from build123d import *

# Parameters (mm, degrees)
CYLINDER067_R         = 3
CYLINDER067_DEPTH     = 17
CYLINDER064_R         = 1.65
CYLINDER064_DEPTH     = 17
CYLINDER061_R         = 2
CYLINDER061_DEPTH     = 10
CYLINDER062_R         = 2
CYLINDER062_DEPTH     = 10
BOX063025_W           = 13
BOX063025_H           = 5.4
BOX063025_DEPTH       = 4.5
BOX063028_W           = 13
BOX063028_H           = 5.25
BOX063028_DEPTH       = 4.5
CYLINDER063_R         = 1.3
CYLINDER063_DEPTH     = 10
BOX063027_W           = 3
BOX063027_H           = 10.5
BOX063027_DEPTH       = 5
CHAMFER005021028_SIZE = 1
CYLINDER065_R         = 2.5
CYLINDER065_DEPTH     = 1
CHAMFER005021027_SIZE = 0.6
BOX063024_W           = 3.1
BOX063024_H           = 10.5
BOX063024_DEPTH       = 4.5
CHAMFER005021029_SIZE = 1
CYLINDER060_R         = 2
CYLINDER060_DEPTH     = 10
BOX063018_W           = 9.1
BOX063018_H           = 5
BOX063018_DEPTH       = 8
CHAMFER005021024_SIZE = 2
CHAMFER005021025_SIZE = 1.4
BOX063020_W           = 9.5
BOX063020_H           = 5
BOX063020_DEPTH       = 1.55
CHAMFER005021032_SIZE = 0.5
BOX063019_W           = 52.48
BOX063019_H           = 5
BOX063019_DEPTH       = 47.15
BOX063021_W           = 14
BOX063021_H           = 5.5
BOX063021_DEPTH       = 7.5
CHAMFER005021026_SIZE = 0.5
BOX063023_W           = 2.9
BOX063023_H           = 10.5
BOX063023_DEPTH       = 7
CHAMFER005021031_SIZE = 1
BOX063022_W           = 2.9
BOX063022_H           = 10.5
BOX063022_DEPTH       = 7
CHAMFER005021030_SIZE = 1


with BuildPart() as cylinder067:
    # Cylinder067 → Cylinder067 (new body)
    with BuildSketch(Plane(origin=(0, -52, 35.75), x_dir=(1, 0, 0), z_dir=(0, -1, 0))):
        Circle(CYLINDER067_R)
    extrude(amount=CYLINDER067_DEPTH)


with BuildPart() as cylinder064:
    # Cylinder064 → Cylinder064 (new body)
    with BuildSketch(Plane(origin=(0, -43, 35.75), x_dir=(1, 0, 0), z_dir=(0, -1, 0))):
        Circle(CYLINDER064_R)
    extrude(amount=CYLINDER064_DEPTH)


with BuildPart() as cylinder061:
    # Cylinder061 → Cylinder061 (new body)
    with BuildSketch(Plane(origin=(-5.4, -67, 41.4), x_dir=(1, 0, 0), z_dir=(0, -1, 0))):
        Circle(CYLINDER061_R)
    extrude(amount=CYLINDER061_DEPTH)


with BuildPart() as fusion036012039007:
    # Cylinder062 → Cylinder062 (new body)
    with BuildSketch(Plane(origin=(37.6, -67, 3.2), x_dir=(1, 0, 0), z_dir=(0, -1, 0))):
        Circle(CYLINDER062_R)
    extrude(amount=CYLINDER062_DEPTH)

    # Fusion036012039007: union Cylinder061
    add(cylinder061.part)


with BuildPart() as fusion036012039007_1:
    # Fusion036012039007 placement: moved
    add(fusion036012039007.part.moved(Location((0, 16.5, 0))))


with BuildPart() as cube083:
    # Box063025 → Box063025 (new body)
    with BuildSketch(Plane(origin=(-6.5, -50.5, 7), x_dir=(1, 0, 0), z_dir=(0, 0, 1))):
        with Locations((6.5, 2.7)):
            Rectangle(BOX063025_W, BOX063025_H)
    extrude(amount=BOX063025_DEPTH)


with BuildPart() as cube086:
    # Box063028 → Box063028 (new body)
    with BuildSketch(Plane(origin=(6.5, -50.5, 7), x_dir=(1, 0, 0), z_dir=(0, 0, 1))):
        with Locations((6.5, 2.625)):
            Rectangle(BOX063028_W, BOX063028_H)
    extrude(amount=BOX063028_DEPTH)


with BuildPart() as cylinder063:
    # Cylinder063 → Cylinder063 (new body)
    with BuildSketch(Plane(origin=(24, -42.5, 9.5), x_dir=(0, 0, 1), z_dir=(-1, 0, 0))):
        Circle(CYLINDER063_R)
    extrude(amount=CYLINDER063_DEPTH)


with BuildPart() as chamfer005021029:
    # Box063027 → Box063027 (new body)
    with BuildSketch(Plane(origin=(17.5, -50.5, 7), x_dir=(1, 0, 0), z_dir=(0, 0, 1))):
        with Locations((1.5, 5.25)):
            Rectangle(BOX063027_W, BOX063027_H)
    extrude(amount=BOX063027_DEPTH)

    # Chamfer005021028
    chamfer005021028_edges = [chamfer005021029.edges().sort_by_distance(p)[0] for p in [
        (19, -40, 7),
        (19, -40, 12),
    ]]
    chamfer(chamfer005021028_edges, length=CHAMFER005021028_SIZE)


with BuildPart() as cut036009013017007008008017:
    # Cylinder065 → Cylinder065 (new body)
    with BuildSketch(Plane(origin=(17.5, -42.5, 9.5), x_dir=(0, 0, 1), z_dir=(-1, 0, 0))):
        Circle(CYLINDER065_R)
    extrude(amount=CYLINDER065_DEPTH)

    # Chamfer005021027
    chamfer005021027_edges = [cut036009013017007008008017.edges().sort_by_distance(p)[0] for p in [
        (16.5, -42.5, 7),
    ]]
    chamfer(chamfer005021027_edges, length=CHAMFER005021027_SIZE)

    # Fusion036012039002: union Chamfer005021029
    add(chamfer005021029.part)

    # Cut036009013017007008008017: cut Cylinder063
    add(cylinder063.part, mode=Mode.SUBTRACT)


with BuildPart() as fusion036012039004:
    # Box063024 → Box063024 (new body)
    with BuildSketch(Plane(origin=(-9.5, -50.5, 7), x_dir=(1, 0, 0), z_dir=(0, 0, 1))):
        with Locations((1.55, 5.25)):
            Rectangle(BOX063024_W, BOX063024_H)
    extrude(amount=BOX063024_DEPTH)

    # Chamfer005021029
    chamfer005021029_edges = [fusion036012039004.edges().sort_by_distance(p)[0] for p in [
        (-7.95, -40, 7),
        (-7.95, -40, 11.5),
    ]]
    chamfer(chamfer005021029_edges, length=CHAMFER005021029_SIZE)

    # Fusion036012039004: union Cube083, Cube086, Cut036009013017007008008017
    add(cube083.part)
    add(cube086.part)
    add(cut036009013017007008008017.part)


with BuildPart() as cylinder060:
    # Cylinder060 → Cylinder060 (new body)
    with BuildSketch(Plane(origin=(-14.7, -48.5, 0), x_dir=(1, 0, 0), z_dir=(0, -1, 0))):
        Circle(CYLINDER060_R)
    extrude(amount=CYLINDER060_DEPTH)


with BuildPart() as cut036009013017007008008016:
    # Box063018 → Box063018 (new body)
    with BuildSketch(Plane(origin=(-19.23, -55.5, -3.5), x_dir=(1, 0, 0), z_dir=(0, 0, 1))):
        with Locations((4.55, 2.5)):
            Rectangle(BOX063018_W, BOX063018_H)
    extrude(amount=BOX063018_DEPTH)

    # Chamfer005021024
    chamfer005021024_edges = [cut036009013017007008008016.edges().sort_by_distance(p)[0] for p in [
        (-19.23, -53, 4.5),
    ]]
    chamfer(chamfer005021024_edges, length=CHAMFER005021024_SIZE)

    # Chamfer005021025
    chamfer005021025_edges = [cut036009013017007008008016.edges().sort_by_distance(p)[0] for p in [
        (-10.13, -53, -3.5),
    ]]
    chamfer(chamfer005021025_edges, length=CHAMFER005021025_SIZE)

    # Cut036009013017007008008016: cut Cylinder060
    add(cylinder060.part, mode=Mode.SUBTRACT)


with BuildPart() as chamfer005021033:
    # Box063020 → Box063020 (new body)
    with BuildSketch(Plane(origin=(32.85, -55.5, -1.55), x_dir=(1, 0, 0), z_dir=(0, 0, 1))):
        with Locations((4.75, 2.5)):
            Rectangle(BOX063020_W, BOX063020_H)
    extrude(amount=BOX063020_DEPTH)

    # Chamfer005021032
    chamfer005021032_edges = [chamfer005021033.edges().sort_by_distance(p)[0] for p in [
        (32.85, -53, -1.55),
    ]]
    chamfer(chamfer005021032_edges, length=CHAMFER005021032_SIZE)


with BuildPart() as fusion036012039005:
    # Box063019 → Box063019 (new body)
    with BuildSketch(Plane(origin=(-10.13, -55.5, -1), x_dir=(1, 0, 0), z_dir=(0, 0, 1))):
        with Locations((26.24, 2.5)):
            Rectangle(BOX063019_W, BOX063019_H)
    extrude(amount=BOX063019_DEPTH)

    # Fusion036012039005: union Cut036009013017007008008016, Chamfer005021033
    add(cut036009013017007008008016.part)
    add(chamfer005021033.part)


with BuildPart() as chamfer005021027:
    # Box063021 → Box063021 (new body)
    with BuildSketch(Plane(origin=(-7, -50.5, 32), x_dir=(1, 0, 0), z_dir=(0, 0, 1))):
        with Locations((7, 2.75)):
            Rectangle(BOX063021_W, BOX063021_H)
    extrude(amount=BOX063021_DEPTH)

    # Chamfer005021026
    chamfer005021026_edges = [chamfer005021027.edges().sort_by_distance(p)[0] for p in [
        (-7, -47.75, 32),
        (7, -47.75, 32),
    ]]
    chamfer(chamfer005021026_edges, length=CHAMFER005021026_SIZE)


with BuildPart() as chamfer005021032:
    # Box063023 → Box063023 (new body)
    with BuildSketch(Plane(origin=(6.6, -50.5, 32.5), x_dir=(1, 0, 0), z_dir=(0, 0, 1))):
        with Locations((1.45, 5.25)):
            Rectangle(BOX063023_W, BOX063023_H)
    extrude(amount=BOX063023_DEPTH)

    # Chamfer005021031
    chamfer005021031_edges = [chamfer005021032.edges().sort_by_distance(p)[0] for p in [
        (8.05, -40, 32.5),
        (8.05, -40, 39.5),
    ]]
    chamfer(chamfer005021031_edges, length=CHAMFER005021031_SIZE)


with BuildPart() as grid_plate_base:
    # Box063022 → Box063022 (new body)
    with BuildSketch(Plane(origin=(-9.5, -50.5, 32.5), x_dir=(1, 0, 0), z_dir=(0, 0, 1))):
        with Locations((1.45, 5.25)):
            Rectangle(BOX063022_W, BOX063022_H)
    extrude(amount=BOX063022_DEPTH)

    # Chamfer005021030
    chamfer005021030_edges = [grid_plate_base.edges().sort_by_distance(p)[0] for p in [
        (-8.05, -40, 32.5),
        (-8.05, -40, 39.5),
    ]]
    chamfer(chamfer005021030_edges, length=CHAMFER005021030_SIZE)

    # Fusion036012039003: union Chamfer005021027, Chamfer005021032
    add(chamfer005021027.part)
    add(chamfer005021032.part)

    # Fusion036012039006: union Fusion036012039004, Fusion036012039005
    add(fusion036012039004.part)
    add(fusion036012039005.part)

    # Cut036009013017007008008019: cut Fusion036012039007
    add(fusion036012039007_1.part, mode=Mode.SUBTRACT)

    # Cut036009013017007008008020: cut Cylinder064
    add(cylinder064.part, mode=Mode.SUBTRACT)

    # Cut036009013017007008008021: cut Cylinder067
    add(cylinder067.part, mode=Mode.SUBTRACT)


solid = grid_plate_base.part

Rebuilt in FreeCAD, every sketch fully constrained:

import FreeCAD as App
import Part
import Sketcher

V = App.Vector
Q = App.Units.Quantity


def edges_at(feature, points):
    """Names of the edges that pass closest to the given points."""
    edges = feature.Shape.Edges
    near = lambda p: min(range(len(edges)), key=lambda i: edges[i].distToShape(Part.Vertex(*p))[0])
    return sorted({f"Edge{near(p) + 1}" for p in points})


def add_polygon(sketch, points):
    """Adds a closed chain of lines whose ends are joined by coincident constraints."""
    first, n = sketch.GeometryCount, len(points)
    for a, b in zip(points, points[1:] + points[:1]):
        sketch.addGeometry(Part.LineSegment(App.Vector(*a, 0), App.Vector(*b, 0)), False)
    for i in range(n):
        sketch.addConstraint(Sketcher.Constraint("Coincident", first + i, 2, first + (i + 1) % n, 1))

doc = App.newDocument("Part")
body = doc.addObject("PartDesign::Body", "Body")

# Sketch on XZ plane
sketch1 = body.newObject("Sketcher::SketchObject", "Sketch")
sketch1.AttachmentSupport = (doc.getObject("XZ_Plane"), [""])
sketch1.MapMode = "FlatFace"
sketch1.AttachmentOffset = App.Placement(V(0, 0, 52), App.Rotation())
sketch1.addGeometry(Part.Circle(V(0, 35.75, 0), V(0, 0, 1), 3), False)
sketch1.addConstraint([
    Sketcher.Constraint("PointOnObject", 0, 3, -2),
    Sketcher.Constraint("Diameter", 0, Q("6 mm")),
    Sketcher.Constraint("DistanceY", -1, 1, 0, 3, Q("35.75 mm")),
])
pad1 = body.newObject("PartDesign::Pad", "Pad")
pad1.Profile = sketch1
pad1.Length = 17
body2 = doc.addObject("PartDesign::Body", "Body001")

# Sketch on XZ plane
sketch2 = body2.newObject("Sketcher::SketchObject", "Sketch001")
sketch2.AttachmentSupport = (doc.getObject("XZ_Plane001"), [""])
sketch2.MapMode = "FlatFace"
sketch2.AttachmentOffset = App.Placement(V(0, 0, 43), App.Rotation())
sketch2.addGeometry(Part.Circle(V(0, 35.75, 0), V(0, 0, 1), 1.65), False)
sketch2.addConstraint([
    Sketcher.Constraint("PointOnObject", 0, 3, -2),
    Sketcher.Constraint("Diameter", 0, Q("3.3 mm")),
    Sketcher.Constraint("DistanceY", -1, 1, 0, 3, Q("35.75 mm")),
])
pad2 = body2.newObject("PartDesign::Pad", "Pad001")
pad2.Profile = sketch2
pad2.Length = 17
body3 = doc.addObject("PartDesign::Body", "Body002")

# Sketch on XZ plane
sketch3 = body3.newObject("Sketcher::SketchObject", "Sketch002")
sketch3.AttachmentSupport = (doc.getObject("XZ_Plane002"), [""])
sketch3.MapMode = "FlatFace"
sketch3.AttachmentOffset = App.Placement(V(0, 0, 67), App.Rotation())
sketch3.addGeometry(Part.Circle(V(-5.4, 41.4, 0), V(0, 0, 1), 2), False)
sketch3.addConstraint([
    Sketcher.Constraint("Diameter", 0, Q("4 mm")),
    Sketcher.Constraint("DistanceX", 0, 3, -1, 1, Q("5.4 mm")),
    Sketcher.Constraint("DistanceY", -1, 1, 0, 3, Q("41.4 mm")),
])
pad3 = body3.newObject("PartDesign::Pad", "Pad002")
pad3.Profile = sketch3
pad3.Length = 10
body4 = doc.addObject("PartDesign::Body", "Body003")
body4.AllowCompound = True

# Sketch on XZ plane
sketch4 = body4.newObject("Sketcher::SketchObject", "Sketch003")
sketch4.AttachmentSupport = (doc.getObject("XZ_Plane003"), [""])
sketch4.MapMode = "FlatFace"
sketch4.AttachmentOffset = App.Placement(V(0, 0, 67), App.Rotation())
sketch4.addGeometry(Part.Circle(V(37.6, 3.2, 0), V(0, 0, 1), 2), False)
sketch4.addConstraint([
    Sketcher.Constraint("Diameter", 0, Q("4 mm")),
    Sketcher.Constraint("DistanceX", -1, 1, 0, 3, Q("37.6 mm")),
    Sketcher.Constraint("DistanceY", -1, 1, 0, 3, Q("3.2 mm")),
])
pad4 = body4.newObject("PartDesign::Pad", "Pad003")
pad4.Profile = sketch4
pad4.Length = 10
doc.recompute()

boolean = body4.newObject("PartDesign::Boolean", "Boolean")
boolean.Type = "Fuse"
boolean.addObjects([body3])
body5 = doc.addObject("PartDesign::Body", "Body004")
body5.AllowCompound = True
doc.recompute()

body4.Placement = App.Placement(V(0, 16.5, 0), App.Rotation(V(0, 0, 1), 0))
boolean2 = body5.newObject("PartDesign::Boolean", "Boolean001")
boolean2.Type = "Fuse"
boolean2.addObjects([body4])
body6 = doc.addObject("PartDesign::Body", "Body005")

# Sketch on XY plane
sketch5 = body6.newObject("Sketcher::SketchObject", "Sketch004")
sketch5.AttachmentSupport = (doc.getObject("XY_Plane005"), [""])
sketch5.MapMode = "FlatFace"
sketch5.AttachmentOffset = App.Placement(V(0, 0, 7), App.Rotation())
add_polygon(sketch5, [(-6.5, -45.1), (-6.5, -50.5), (6.5, -50.5), (6.5, -45.1)])  # lines 0-3
sketch5.addConstraint([
    Sketcher.Constraint("Vertical", 0),
    Sketcher.Constraint("Horizontal", 1),
    Sketcher.Constraint("Vertical", 2),
    Sketcher.Constraint("Horizontal", 3),
    Sketcher.Constraint("DistanceX", 1, 1, 1, 2, Q("13 mm")),
    Sketcher.Constraint("DistanceY", 0, 2, 0, 1, Q("5.4 mm")),
    Sketcher.Constraint("DistanceX", 0, 2, -1, 1, Q("6.5 mm")),
    Sketcher.Constraint("DistanceY", 0, 2, -1, 1, Q("50.5 mm")),
])
pad5 = body6.newObject("PartDesign::Pad", "Pad004")
pad5.Profile = sketch5
pad5.Length = 4.5
body7 = doc.addObject("PartDesign::Body", "Body006")

# Sketch on XY plane
sketch6 = body7.newObject("Sketcher::SketchObject", "Sketch005")
sketch6.AttachmentSupport = (doc.getObject("XY_Plane006"), [""])
sketch6.MapMode = "FlatFace"
sketch6.AttachmentOffset = App.Placement(V(0, 0, 7), App.Rotation())
add_polygon(sketch6, [(6.5, -45.25), (6.5, -50.5), (19.5, -50.5), (19.5, -45.25)])  # lines 0-3
sketch6.addConstraint([
    Sketcher.Constraint("Vertical", 0),
    Sketcher.Constraint("Horizontal", 1),
    Sketcher.Constraint("Vertical", 2),
    Sketcher.Constraint("Horizontal", 3),
    Sketcher.Constraint("DistanceX", 1, 1, 1, 2, Q("13 mm")),
    Sketcher.Constraint("DistanceY", 0, 2, 0, 1, Q("5.25 mm")),
    Sketcher.Constraint("DistanceX", -1, 1, 0, 2, Q("6.5 mm")),
    Sketcher.Constraint("DistanceY", 0, 2, -1, 1, Q("50.5 mm")),
])
pad6 = body7.newObject("PartDesign::Pad", "Pad005")
pad6.Profile = sketch6
pad6.Length = 4.5
body8 = doc.addObject("PartDesign::Body", "Body007")

# Sketch on YZ plane
sketch7 = body8.newObject("Sketcher::SketchObject", "Sketch006")
sketch7.AttachmentSupport = (doc.getObject("YZ_Plane007"), [""])
sketch7.MapMode = "FlatFace"
sketch7.AttachmentOffset = App.Placement(V(0, 0, 24), App.Rotation())
sketch7.addGeometry(Part.Circle(V(-42.5, 9.5, 0), V(0, 0, 1), 1.3), False)
sketch7.addConstraint([
    Sketcher.Constraint("Diameter", 0, Q("2.6 mm")),
    Sketcher.Constraint("DistanceX", 0, 3, -1, 1, Q("42.5 mm")),
    Sketcher.Constraint("DistanceY", -1, 1, 0, 3, Q("9.5 mm")),
])
pad7 = body8.newObject("PartDesign::Pad", "Pad006")
pad7.Profile = sketch7
pad7.Length = 10
pad7.Reversed = True
body9 = doc.addObject("PartDesign::Body", "Body008")

# Sketch on XY plane
sketch8 = body9.newObject("Sketcher::SketchObject", "Sketch007")
sketch8.AttachmentSupport = (doc.getObject("XY_Plane008"), [""])
sketch8.MapMode = "FlatFace"
sketch8.AttachmentOffset = App.Placement(V(0, 0, 7), App.Rotation())
add_polygon(sketch8, [(17.5, -40), (17.5, -50.5), (20.5, -50.5), (20.5, -40)])  # lines 0-3
sketch8.addConstraint([
    Sketcher.Constraint("Vertical", 0),
    Sketcher.Constraint("Horizontal", 1),
    Sketcher.Constraint("Vertical", 2),
    Sketcher.Constraint("Horizontal", 3),
    Sketcher.Constraint("DistanceX", 1, 1, 1, 2, Q("3 mm")),
    Sketcher.Constraint("DistanceY", 0, 2, 0, 1, Q("10.5 mm")),
    Sketcher.Constraint("DistanceY", 2, 2, -1, 1, Q("40 mm")),
    Sketcher.Constraint("DistanceX", -1, 1, 0, 2, Q("17.5 mm")),
])
pad8 = body9.newObject("PartDesign::Pad", "Pad007")
pad8.Profile = sketch8
pad8.Length = 5
doc.recompute()

chamfer = body9.newObject("PartDesign::Chamfer", "Chamfer")
chamfer.Base = (pad8, edges_at(pad8, [(19, -40, 7), (19, -40, 12)]))
chamfer.Size = 1
body10 = doc.addObject("PartDesign::Body", "Body009")

# Sketch on YZ plane
sketch9 = body10.newObject("Sketcher::SketchObject", "Sketch008")
sketch9.AttachmentSupport = (doc.getObject("YZ_Plane009"), [""])
sketch9.MapMode = "FlatFace"
sketch9.AttachmentOffset = App.Placement(V(0, 0, 17.5), App.Rotation())
sketch9.addGeometry(Part.Circle(V(-42.5, 9.5, 0), V(0, 0, 1), 2.5), False)
sketch9.addConstraint([
    Sketcher.Constraint("Diameter", 0, Q("5 mm")),
    Sketcher.Constraint("DistanceX", 0, 3, -1, 1, Q("42.5 mm")),
    Sketcher.Constraint("DistanceY", -1, 1, 0, 3, Q("9.5 mm")),
])
pad9 = body10.newObject("PartDesign::Pad", "Pad008")
pad9.Profile = sketch9
pad9.Length = 1
pad9.Reversed = True
doc.recompute()

chamfer2 = body10.newObject("PartDesign::Chamfer", "Chamfer001")
chamfer2.Base = (pad9, edges_at(pad9, [(16.5, -42.5, 7)]))
chamfer2.Size = 0.6
doc.recompute()

boolean3 = body10.newObject("PartDesign::Boolean", "Boolean002")
boolean3.Type = "Fuse"
boolean3.addObjects([body9])
doc.recompute()

boolean4 = body10.newObject("PartDesign::Boolean", "Boolean003")
boolean4.Type = "Cut"
boolean4.addObjects([body8])
body11 = doc.addObject("PartDesign::Body", "Body010")

# Sketch on XY plane
sketch10 = body11.newObject("Sketcher::SketchObject", "Sketch009")
sketch10.AttachmentSupport = (doc.getObject("XY_Plane010"), [""])
sketch10.MapMode = "FlatFace"
sketch10.AttachmentOffset = App.Placement(V(0, 0, 7), App.Rotation())
add_polygon(sketch10, [(-9.5, -40), (-9.5, -50.5), (-6.4, -50.5), (-6.4, -40)])  # lines 0-3
sketch10.addConstraint([
    Sketcher.Constraint("Vertical", 0),
    Sketcher.Constraint("Horizontal", 1),
    Sketcher.Constraint("Vertical", 2),
    Sketcher.Constraint("Horizontal", 3),
    Sketcher.Constraint("DistanceX", 1, 1, 1, 2, Q("3.1 mm")),
    Sketcher.Constraint("DistanceY", 0, 2, 0, 1, Q("10.5 mm")),
    Sketcher.Constraint("DistanceY", 2, 2, -1, 1, Q("40 mm")),
    Sketcher.Constraint("DistanceX", 0, 2, -1, 1, Q("9.5 mm")),
])
pad10 = body11.newObject("PartDesign::Pad", "Pad009")
pad10.Profile = sketch10
pad10.Length = 4.5
doc.recompute()

chamfer3 = body11.newObject("PartDesign::Chamfer", "Chamfer002")
chamfer3.Base = (pad10, edges_at(pad10, [(-7.95, -40, 7), (-7.95, -40, 11.5)]))
chamfer3.Size = 1
doc.recompute()

boolean5 = body11.newObject("PartDesign::Boolean", "Boolean004")
boolean5.Type = "Fuse"
boolean5.addObjects([body6])
doc.recompute()

boolean6 = body11.newObject("PartDesign::Boolean", "Boolean005")
boolean6.Type = "Fuse"
boolean6.addObjects([body7])
doc.recompute()

boolean7 = body11.newObject("PartDesign::Boolean", "Boolean006")
boolean7.Type = "Fuse"
boolean7.addObjects([body10])
body12 = doc.addObject("PartDesign::Body", "Body011")

# Sketch on XZ plane
sketch11 = body12.newObject("Sketcher::SketchObject", "Sketch010")
sketch11.AttachmentSupport = (doc.getObject("XZ_Plane011"), [""])
sketch11.MapMode = "FlatFace"
sketch11.AttachmentOffset = App.Placement(V(0, 0, 48.5), App.Rotation())
sketch11.addGeometry(Part.Circle(V(-14.7, 0, 0), V(0, 0, 1), 2), False)
sketch11.addConstraint([
    Sketcher.Constraint("PointOnObject", 0, 3, -1),
    Sketcher.Constraint("Diameter", 0, Q("4 mm")),
    Sketcher.Constraint("DistanceX", 0, 3, -1, 1, Q("14.7 mm")),
])
pad11 = body12.newObject("PartDesign::Pad", "Pad010")
pad11.Profile = sketch11
pad11.Length = 10
body13 = doc.addObject("PartDesign::Body", "Body012")

# Sketch on XY plane
sketch12 = body13.newObject("Sketcher::SketchObject", "Sketch011")
sketch12.AttachmentSupport = (doc.getObject("XY_Plane012"), [""])
sketch12.MapMode = "FlatFace"
sketch12.AttachmentOffset = App.Placement(V(0, 0, -3.5), App.Rotation())
add_polygon(sketch12, [(-19.23, -50.5), (-19.23, -55.5), (-10.13, -55.5), (-10.13, -50.5)])  # lines 0-3
sketch12.addConstraint([
    Sketcher.Constraint("Vertical", 0),
    Sketcher.Constraint("Horizontal", 1),
    Sketcher.Constraint("Vertical", 2),
    Sketcher.Constraint("Horizontal", 3),
    Sketcher.Constraint("DistanceY", 0, 2, 0, 1, Q("5 mm")),
    Sketcher.Constraint("DistanceX", 1, 1, 1, 2, Q("9.1 mm")),
    Sketcher.Constraint("DistanceY", 0, 2, -1, 1, Q("55.5 mm")),
    Sketcher.Constraint("DistanceX", 0, 2, -1, 1, Q("19.23 mm")),
])
pad12 = body13.newObject("PartDesign::Pad", "Pad011")
pad12.Profile = sketch12
pad12.Length = 8
doc.recompute()

chamfer4 = body13.newObject("PartDesign::Chamfer", "Chamfer003")
chamfer4.Base = (pad12, edges_at(pad12, [(-19.23, -53, 4.5)]))
chamfer4.Size = 2
doc.recompute()

chamfer5 = body13.newObject("PartDesign::Chamfer", "Chamfer004")
chamfer5.Base = (chamfer4, edges_at(chamfer4, [(-10.13, -53, -3.5)]))
chamfer5.Size = 1.4
doc.recompute()

boolean8 = body13.newObject("PartDesign::Boolean", "Boolean007")
boolean8.Type = "Cut"
boolean8.addObjects([body12])
body14 = doc.addObject("PartDesign::Body", "Body013")

# Sketch on XY plane
sketch13 = body14.newObject("Sketcher::SketchObject", "Sketch012")
sketch13.AttachmentSupport = (doc.getObject("XY_Plane013"), [""])
sketch13.MapMode = "FlatFace"
sketch13.AttachmentOffset = App.Placement(V(0, 0, -1.55), App.Rotation())
add_polygon(sketch13, [(32.85, -50.5), (32.85, -55.5), (42.35, -55.5), (42.35, -50.5)])  # lines 0-3
sketch13.addConstraint([
    Sketcher.Constraint("Vertical", 0),
    Sketcher.Constraint("Horizontal", 1),
    Sketcher.Constraint("Vertical", 2),
    Sketcher.Constraint("Horizontal", 3),
    Sketcher.Constraint("DistanceY", 0, 2, 0, 1, Q("5 mm")),
    Sketcher.Constraint("DistanceX", 1, 1, 1, 2, Q("9.5 mm")),
    Sketcher.Constraint("DistanceY", 0, 2, -1, 1, Q("55.5 mm")),
    Sketcher.Constraint("DistanceX", -1, 1, 0, 2, Q("32.85 mm")),
])
pad13 = body14.newObject("PartDesign::Pad", "Pad012")
pad13.Profile = sketch13
pad13.Length = 1.55
doc.recompute()

chamfer6 = body14.newObject("PartDesign::Chamfer", "Chamfer005")
chamfer6.Base = (pad13, edges_at(pad13, [(32.85, -53, -1.55)]))
chamfer6.Size = 0.5
body15 = doc.addObject("PartDesign::Body", "Body014")

# Sketch on XY plane
sketch14 = body15.newObject("Sketcher::SketchObject", "Sketch013")
sketch14.AttachmentSupport = (doc.getObject("XY_Plane014"), [""])
sketch14.MapMode = "FlatFace"
sketch14.AttachmentOffset = App.Placement(V(0, 0, -1), App.Rotation())
add_polygon(sketch14, [(-10.13, -50.5), (-10.13, -55.5), (42.35, -55.5), (42.35, -50.5)])  # lines 0-3
sketch14.addConstraint([
    Sketcher.Constraint("Vertical", 0),
    Sketcher.Constraint("Horizontal", 1),
    Sketcher.Constraint("Vertical", 2),
    Sketcher.Constraint("Horizontal", 3),
    Sketcher.Constraint("DistanceY", 0, 2, 0, 1, Q("5 mm")),
    Sketcher.Constraint("DistanceX", 1, 1, 1, 2, Q("52.48 mm")),
    Sketcher.Constraint("DistanceY", 0, 2, -1, 1, Q("55.5 mm")),
    Sketcher.Constraint("DistanceX", 0, 2, -1, 1, Q("10.13 mm")),
])
pad14 = body15.newObject("PartDesign::Pad", "Pad013")
pad14.Profile = sketch14
pad14.Length = 47.15
doc.recompute()

boolean9 = body15.newObject("PartDesign::Boolean", "Boolean008")
boolean9.Type = "Fuse"
boolean9.addObjects([body13])
doc.recompute()

boolean10 = body15.newObject("PartDesign::Boolean", "Boolean009")
boolean10.Type = "Fuse"
boolean10.addObjects([body14])
body16 = doc.addObject("PartDesign::Body", "Body015")

# Sketch on XY plane
sketch15 = body16.newObject("Sketcher::SketchObject", "Sketch014")
sketch15.AttachmentSupport = (doc.getObject("XY_Plane015"), [""])
sketch15.MapMode = "FlatFace"
sketch15.AttachmentOffset = App.Placement(V(0, 0, 32), App.Rotation())
add_polygon(sketch15, [(-7, -45), (-7, -50.5), (7, -50.5), (7, -45)])  # lines 0-3
sketch15.addConstraint([
    Sketcher.Constraint("Vertical", 0),
    Sketcher.Constraint("Horizontal", 1),
    Sketcher.Constraint("Vertical", 2),
    Sketcher.Constraint("Horizontal", 3),
    Sketcher.Constraint("DistanceX", 1, 1, 1, 2, Q("14 mm")),
    Sketcher.Constraint("DistanceY", 0, 2, 0, 1, Q("5.5 mm")),
    Sketcher.Constraint("DistanceX", 0, 2, -1, 1, Q("7 mm")),
    Sketcher.Constraint("DistanceY", 2, 2, -1, 1, Q("45 mm")),
])
pad15 = body16.newObject("PartDesign::Pad", "Pad014")
pad15.Profile = sketch15
pad15.Length = 7.5
doc.recompute()

chamfer7 = body16.newObject("PartDesign::Chamfer", "Chamfer006")
chamfer7.Base = (pad15, edges_at(pad15, [(-7, -47.75, 32), (7, -47.75, 32)]))
chamfer7.Size = 0.5
body17 = doc.addObject("PartDesign::Body", "Body016")

# Sketch on XY plane
sketch16 = body17.newObject("Sketcher::SketchObject", "Sketch015")
sketch16.AttachmentSupport = (doc.getObject("XY_Plane016"), [""])
sketch16.MapMode = "FlatFace"
sketch16.AttachmentOffset = App.Placement(V(0, 0, 32.5), App.Rotation())
add_polygon(sketch16, [(6.6, -40), (6.6, -50.5), (9.5, -50.5), (9.5, -40)])  # lines 0-3
sketch16.addConstraint([
    Sketcher.Constraint("Vertical", 0),
    Sketcher.Constraint("Horizontal", 1),
    Sketcher.Constraint("Vertical", 2),
    Sketcher.Constraint("Horizontal", 3),
    Sketcher.Constraint("DistanceX", 1, 1, 1, 2, Q("2.9 mm")),
    Sketcher.Constraint("DistanceY", 0, 2, 0, 1, Q("10.5 mm")),
    Sketcher.Constraint("DistanceY", 2, 2, -1, 1, Q("40 mm")),
    Sketcher.Constraint("DistanceX", -1, 1, 0, 2, Q("6.6 mm")),
])
pad16 = body17.newObject("PartDesign::Pad", "Pad015")
pad16.Profile = sketch16
pad16.Length = 7
doc.recompute()

chamfer8 = body17.newObject("PartDesign::Chamfer", "Chamfer007")
chamfer8.Base = (pad16, edges_at(pad16, [(8.05, -40, 32.5), (8.05, -40, 39.5)]))
chamfer8.Size = 1
body18 = doc.addObject("PartDesign::Body", "Body017")
body18.AllowCompound = True

# Sketch on XY plane
sketch17 = body18.newObject("Sketcher::SketchObject", "Sketch016")
sketch17.AttachmentSupport = (doc.getObject("XY_Plane017"), [""])
sketch17.MapMode = "FlatFace"
sketch17.AttachmentOffset = App.Placement(V(0, 0, 32.5), App.Rotation())
add_polygon(sketch17, [(-9.5, -40), (-9.5, -50.5), (-6.6, -50.5), (-6.6, -40)])  # lines 0-3
sketch17.addConstraint([
    Sketcher.Constraint("Vertical", 0),
    Sketcher.Constraint("Horizontal", 1),
    Sketcher.Constraint("Vertical", 2),
    Sketcher.Constraint("Horizontal", 3),
    Sketcher.Constraint("DistanceX", 1, 1, 1, 2, Q("2.9 mm")),
    Sketcher.Constraint("DistanceY", 0, 2, 0, 1, Q("10.5 mm")),
    Sketcher.Constraint("DistanceY", 2, 2, -1, 1, Q("40 mm")),
    Sketcher.Constraint("DistanceX", 0, 2, -1, 1, Q("9.5 mm")),
])
pad17 = body18.newObject("PartDesign::Pad", "Pad016")
pad17.Profile = sketch17
pad17.Length = 7
doc.recompute()

chamfer9 = body18.newObject("PartDesign::Chamfer", "Chamfer008")
chamfer9.Base = (pad17, edges_at(pad17, [(-8.05, -40, 32.5), (-8.05, -40, 39.5)]))
chamfer9.Size = 1
doc.recompute()

boolean11 = body18.newObject("PartDesign::Boolean", "Boolean010")
boolean11.Type = "Fuse"
boolean11.addObjects([body16])
doc.recompute()

boolean12 = body18.newObject("PartDesign::Boolean", "Boolean011")
boolean12.Type = "Fuse"
boolean12.addObjects([body17])
doc.recompute()

boolean13 = body18.newObject("PartDesign::Boolean", "Boolean012")
boolean13.Type = "Fuse"
boolean13.addObjects([body11])
doc.recompute()

boolean14 = body18.newObject("PartDesign::Boolean", "Boolean013")
boolean14.Type = "Fuse"
boolean14.addObjects([body15])
doc.recompute()

boolean15 = body18.newObject("PartDesign::Boolean", "Boolean014")
boolean15.Type = "Cut"
boolean15.addObjects([body5])
doc.recompute()

boolean16 = body18.newObject("PartDesign::Boolean", "Boolean015")
boolean16.Type = "Cut"
boolean16.addObjects([body2])
doc.recompute()

boolean17 = body18.newObject("PartDesign::Boolean", "Boolean016")
boolean17.Type = "Cut"
boolean17.addObjects([body])

doc.recompute()
